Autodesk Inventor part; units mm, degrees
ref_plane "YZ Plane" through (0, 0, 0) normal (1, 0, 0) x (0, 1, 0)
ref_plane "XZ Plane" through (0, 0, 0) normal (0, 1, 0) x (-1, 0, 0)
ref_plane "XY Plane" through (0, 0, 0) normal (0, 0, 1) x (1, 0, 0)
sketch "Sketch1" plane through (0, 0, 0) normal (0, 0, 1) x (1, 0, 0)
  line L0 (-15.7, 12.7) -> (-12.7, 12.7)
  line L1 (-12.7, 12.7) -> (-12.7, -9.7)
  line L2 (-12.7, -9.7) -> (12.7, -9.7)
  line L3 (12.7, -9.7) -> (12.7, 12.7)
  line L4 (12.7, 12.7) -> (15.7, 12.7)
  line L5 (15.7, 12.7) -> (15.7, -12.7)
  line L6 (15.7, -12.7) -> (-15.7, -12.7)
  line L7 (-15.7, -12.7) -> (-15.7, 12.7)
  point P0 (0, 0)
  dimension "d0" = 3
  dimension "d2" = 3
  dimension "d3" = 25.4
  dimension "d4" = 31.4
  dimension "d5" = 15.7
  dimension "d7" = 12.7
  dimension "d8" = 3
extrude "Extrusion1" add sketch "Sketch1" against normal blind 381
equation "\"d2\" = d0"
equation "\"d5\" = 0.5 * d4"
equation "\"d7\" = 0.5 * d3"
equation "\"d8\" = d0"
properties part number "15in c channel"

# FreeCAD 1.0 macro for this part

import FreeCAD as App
import Part
import Sketcher
from FreeCAD import Vector
Q = App.Units.Quantity


def add_polygon(sketch, points):
    """Adds a closed chain of lines whose ends are joined by coincident constraints."""
    first, n = sketch.GeometryCount, len(points)
    for a, b in zip(points, points[1:] + points[:1]):
        sketch.addGeometry(Part.LineSegment(App.Vector(*a, 0), App.Vector(*b, 0)), False)
    for i in range(n):
        sketch.addConstraint(Sketcher.Constraint("Coincident", first + i, 2, first + (i + 1) % n, 1))

doc = App.newDocument("Part")
body = doc.addObject("PartDesign::Body", "Body")

# Sketch on XY plane
sketch1 = body.newObject("Sketcher::SketchObject", "Sketch")
sketch1.AttachmentSupport = (doc.getObject("XY_Plane"), [""])
sketch1.MapMode = "FlatFace"
add_polygon(sketch1, [(-12.7, 12.7), (-15.7, 12.7), (-15.7, -12.7), (15.7, -12.7), (15.7, 12.7), (12.7, 12.7), (12.7, -9.7), (-12.7, -9.7)])  # lines 0-7
sketch1.addConstraint(Sketcher.Constraint("Horizontal", 0))
sketch1.addConstraint(Sketcher.Constraint("Vertical", 1))
sketch1.addConstraint(Sketcher.Constraint("Horizontal", 2))
sketch1.addConstraint(Sketcher.Constraint("Vertical", 3))
sketch1.addConstraint(Sketcher.Constraint("Horizontal", 4))
sketch1.addConstraint(Sketcher.Constraint("Vertical", 5))
sketch1.addConstraint(Sketcher.Constraint("Horizontal", 6))
sketch1.addConstraint(Sketcher.Constraint("Vertical", 7))
sketch1.addConstraint(Sketcher.Constraint("Symmetric", 0, 2, 2, 2, -1, 1))
sketch1.addConstraint(Sketcher.Constraint("Symmetric", 4, 2, 7, 2, -2))
sketch1.addConstraint(Sketcher.Constraint("Equal", 6, 1))
sketch1.addConstraint(Sketcher.Constraint("DistanceX", 6, 2, 6, 1, Q("1 in")))
sketch1.addConstraint(Sketcher.Constraint("DistanceX", 0, 2, 0, 1, Q("0.1181 in")))
sketch1.addConstraint(Sketcher.Constraint("DistanceY", 2, 2, 5, 2, Q("0.1181 in")))
pad1 = body.newObject("PartDesign::Pad", "Pad")
pad1.Profile = sketch1
pad1.Length = Q("15 in")
pad1.Reversed = True

doc.recompute()
